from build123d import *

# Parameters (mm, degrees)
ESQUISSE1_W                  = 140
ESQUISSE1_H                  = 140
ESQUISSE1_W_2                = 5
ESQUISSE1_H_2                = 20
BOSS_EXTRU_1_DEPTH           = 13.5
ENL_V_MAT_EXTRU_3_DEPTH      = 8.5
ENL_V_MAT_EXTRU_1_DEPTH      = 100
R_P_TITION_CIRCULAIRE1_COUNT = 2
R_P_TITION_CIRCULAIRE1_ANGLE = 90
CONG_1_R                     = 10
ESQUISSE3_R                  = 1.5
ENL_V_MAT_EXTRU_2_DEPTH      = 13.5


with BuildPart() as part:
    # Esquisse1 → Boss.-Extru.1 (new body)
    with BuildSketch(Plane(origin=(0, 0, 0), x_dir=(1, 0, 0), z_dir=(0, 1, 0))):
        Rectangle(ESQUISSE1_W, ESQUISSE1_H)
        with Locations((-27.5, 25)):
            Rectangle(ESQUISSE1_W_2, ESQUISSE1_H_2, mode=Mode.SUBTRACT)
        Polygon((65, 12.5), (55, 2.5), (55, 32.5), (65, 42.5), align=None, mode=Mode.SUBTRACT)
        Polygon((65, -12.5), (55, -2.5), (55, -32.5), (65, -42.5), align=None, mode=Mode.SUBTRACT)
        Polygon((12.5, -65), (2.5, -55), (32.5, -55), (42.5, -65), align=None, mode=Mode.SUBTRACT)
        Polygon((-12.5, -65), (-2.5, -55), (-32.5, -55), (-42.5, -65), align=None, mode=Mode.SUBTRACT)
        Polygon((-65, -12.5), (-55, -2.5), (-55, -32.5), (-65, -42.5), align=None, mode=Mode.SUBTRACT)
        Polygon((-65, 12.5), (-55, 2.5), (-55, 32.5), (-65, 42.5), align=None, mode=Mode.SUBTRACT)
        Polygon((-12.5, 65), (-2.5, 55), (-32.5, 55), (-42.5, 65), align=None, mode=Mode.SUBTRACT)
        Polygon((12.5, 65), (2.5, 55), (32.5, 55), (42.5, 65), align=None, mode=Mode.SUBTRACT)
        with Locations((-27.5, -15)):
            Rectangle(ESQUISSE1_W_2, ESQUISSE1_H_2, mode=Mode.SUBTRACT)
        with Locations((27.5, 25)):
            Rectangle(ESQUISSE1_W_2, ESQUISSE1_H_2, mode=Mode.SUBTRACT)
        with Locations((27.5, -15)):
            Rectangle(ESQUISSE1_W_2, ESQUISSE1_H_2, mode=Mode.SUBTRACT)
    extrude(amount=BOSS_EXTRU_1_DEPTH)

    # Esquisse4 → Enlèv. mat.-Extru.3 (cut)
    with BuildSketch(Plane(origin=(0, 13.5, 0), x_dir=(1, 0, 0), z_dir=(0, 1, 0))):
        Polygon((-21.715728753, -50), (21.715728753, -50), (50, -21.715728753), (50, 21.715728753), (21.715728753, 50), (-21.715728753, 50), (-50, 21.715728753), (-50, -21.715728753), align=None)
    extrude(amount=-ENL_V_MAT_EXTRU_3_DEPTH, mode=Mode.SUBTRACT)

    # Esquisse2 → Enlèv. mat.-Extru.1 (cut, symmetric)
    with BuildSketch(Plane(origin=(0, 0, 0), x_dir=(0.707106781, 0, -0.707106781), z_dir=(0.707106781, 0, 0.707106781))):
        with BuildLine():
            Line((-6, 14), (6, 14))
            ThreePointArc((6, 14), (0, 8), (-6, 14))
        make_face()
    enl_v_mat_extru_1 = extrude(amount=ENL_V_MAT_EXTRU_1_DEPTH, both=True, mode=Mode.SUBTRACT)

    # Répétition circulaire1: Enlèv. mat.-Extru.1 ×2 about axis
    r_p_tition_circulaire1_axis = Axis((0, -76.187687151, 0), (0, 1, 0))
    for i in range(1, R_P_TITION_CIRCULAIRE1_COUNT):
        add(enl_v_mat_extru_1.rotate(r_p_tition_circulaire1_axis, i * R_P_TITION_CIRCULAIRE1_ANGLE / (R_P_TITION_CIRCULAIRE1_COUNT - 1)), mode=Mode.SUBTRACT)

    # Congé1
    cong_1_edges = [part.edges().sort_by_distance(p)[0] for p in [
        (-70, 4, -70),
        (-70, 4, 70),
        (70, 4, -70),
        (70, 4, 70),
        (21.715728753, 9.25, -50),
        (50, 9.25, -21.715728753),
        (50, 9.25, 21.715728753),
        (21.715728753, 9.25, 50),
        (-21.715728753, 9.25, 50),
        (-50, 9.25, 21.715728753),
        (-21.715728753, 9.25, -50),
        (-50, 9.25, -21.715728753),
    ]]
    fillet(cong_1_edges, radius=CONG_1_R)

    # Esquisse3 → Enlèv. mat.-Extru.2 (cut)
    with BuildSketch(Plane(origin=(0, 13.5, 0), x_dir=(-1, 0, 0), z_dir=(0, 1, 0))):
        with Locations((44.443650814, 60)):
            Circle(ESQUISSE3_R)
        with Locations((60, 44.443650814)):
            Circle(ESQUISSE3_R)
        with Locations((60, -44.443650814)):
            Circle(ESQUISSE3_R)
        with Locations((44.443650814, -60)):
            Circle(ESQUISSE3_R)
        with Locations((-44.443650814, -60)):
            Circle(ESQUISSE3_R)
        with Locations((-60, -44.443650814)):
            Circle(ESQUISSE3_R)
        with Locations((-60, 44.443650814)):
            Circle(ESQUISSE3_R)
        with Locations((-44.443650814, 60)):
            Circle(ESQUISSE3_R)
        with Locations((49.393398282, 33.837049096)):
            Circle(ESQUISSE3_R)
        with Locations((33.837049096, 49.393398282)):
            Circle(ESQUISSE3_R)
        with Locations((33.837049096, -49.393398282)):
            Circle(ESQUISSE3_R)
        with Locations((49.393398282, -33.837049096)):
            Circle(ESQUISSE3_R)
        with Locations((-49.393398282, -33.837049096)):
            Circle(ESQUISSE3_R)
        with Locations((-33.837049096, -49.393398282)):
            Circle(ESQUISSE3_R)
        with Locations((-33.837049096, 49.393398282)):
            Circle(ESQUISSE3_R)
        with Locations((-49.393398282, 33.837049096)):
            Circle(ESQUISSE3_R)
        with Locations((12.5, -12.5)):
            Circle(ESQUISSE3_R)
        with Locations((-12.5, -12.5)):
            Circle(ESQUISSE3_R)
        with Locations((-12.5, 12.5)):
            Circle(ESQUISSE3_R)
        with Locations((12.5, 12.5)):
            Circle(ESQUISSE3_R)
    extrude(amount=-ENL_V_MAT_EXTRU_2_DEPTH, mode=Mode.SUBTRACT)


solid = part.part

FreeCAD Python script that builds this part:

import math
import FreeCAD as App
import Part
import Sketcher
Q = App.Units.Quantity


def edges_at(feature, points):
    """Names of the edges that pass closest to the given points."""
    edges = feature.Shape.Edges
    near = lambda p: min(range(len(edges)), key=lambda i: edges[i].distToShape(Part.Vertex(*p))[0])
    return sorted({f"Edge{near(p) + 1}" for p in points})

doc = App.newDocument("Part")
body = doc.addObject("PartDesign::Body", "Body")

# Sketch on XZ plane
sketch1 = body.newObject("Sketcher::SketchObject", "Sketch")
sketch1.AttachmentSupport = (doc.getObject("XZ_Plane"), [""])
sketch1.MapMode = "FlatFace"
sketch1.addGeometry([
    Part.LineSegment(App.Vector(-70, -70, 0), App.Vector(-70, 70, 0)),  # 0
    Part.LineSegment(App.Vector(-70, 70, 0), App.Vector(70, 70, 0)),  # 1
    Part.LineSegment(App.Vector(70, 70, 0), App.Vector(70, -70, 0)),  # 2
    Part.LineSegment(App.Vector(70, -70, 0), App.Vector(-70, -70, 0)),  # 3
    Part.LineSegment(App.Vector(-2, 55, 0), App.Vector(-12, 65, 0)),  # 4
    Part.LineSegment(App.Vector(-12, 65, 0), App.Vector(-42, 65, 0)),  # 5
    Part.LineSegment(App.Vector(-42, 65, 0), App.Vector(-32, 55, 0)),  # 6
    Part.LineSegment(App.Vector(-32, 55, 0), App.Vector(-2, 55, 0)),  # 7
    Part.LineSegment(App.Vector(-65, 42, 0), App.Vector(-65, 12, 0)),  # 8
    Part.LineSegment(App.Vector(-65, 12, 0), App.Vector(-55, 2, 0)),  # 9
    Part.LineSegment(App.Vector(-55, 2, 0), App.Vector(-55, 32, 0)),  # 10
    Part.LineSegment(App.Vector(-55, 32, 0), App.Vector(-65, 42, 0)),  # 11
    Part.LineSegment(App.Vector(-25, 25, 0), App.Vector(-30, 25, 0)),  # 12
    Part.LineSegment(App.Vector(-30, 25, 0), App.Vector(-30, 5, 0)),  # 13
    Part.LineSegment(App.Vector(-30, 5, 0), App.Vector(-25, 5, 0)),  # 14
    Part.LineSegment(App.Vector(-25, 5, 0), App.Vector(-25, 25, 0)),  # 15
    Part.LineSegment(App.Vector(42, 65, 0), App.Vector(12, 65, 0)),  # 16
    Part.LineSegment(App.Vector(12, 65, 0), App.Vector(2, 55, 0)),  # 17
    Part.LineSegment(App.Vector(2, 55, 0), App.Vector(32, 55, 0)),  # 18
    Part.LineSegment(App.Vector(32, 55, 0), App.Vector(42, 65, 0)),  # 19
    Part.LineSegment(App.Vector(30, 25, 0), App.Vector(25, 25, 0)),  # 20
    Part.LineSegment(App.Vector(25, 25, 0), App.Vector(25, 5, 0)),  # 21
    Part.LineSegment(App.Vector(25, 5, 0), App.Vector(30, 5, 0)),  # 22
    Part.LineSegment(App.Vector(30, 5, 0), App.Vector(30, 25, 0)),  # 23
    Part.LineSegment(App.Vector(55, 2, 0), App.Vector(65, 12, 0)),  # 24
    Part.LineSegment(App.Vector(65, 12, 0), App.Vector(65, 42, 0)),  # 25
    Part.LineSegment(App.Vector(65, 42, 0), App.Vector(55, 32, 0)),  # 26
    Part.LineSegment(App.Vector(55, 32, 0), App.Vector(55, 2, 0)),  # 27
    Part.LineSegment(App.Vector(-55, -2, 0), App.Vector(-65, -12, 0)),  # 28
    Part.LineSegment(App.Vector(-65, -12, 0), App.Vector(-65, -42, 0)),  # 29
    Part.LineSegment(App.Vector(-65, -42, 0), App.Vector(-55, -32, 0)),  # 30
    Part.LineSegment(App.Vector(-55, -32, 0), App.Vector(-55, -2, 0)),  # 31
    Part.LineSegment(App.Vector(-25, -15, 0), App.Vector(-30, -15, 0)),  # 32
    Part.LineSegment(App.Vector(-30, -15, 0), App.Vector(-30, -35, 0)),  # 33
    Part.LineSegment(App.Vector(-30, -35, 0), App.Vector(-25, -35, 0)),  # 34
    Part.LineSegment(App.Vector(-25, -35, 0), App.Vector(-25, -15, 0)),  # 35
    Part.LineSegment(App.Vector(-42, -65, 0), App.Vector(-12, -65, 0)),  # 36
    Part.LineSegment(App.Vector(-12, -65, 0), App.Vector(-2, -55, 0)),  # 37
    Part.LineSegment(App.Vector(-2, -55, 0), App.Vector(-32, -55, 0)),  # 38
    Part.LineSegment(App.Vector(-32, -55, 0), App.Vector(-42, -65, 0)),  # 39
    Part.LineSegment(App.Vector(30, -15, 0), App.Vector(25, -15, 0)),  # 40
    Part.LineSegment(App.Vector(25, -15, 0), App.Vector(25, -35, 0)),  # 41
    Part.LineSegment(App.Vector(25, -35, 0), App.Vector(30, -35, 0)),  # 42
    Part.LineSegment(App.Vector(30, -35, 0), App.Vector(30, -15, 0)),  # 43
    Part.LineSegment(App.Vector(65, -42, 0), App.Vector(65, -12, 0)),  # 44
    Part.LineSegment(App.Vector(65, -12, 0), App.Vector(55, -2, 0)),  # 45
    Part.LineSegment(App.Vector(55, -2, 0), App.Vector(55, -32, 0)),  # 46
    Part.LineSegment(App.Vector(55, -32, 0), App.Vector(65, -42, 0)),  # 47
    Part.LineSegment(App.Vector(2, -55, 0), App.Vector(12, -65, 0)),  # 48
    Part.LineSegment(App.Vector(12, -65, 0), App.Vector(42, -65, 0)),  # 49
    Part.LineSegment(App.Vector(42, -65, 0), App.Vector(32, -55, 0)),  # 50
    Part.LineSegment(App.Vector(32, -55, 0), App.Vector(2, -55, 0)),  # 51
], False)
sketch1.addConstraint([
    Sketcher.Constraint("Coincident", 0, 2, 1, 1),
    Sketcher.Constraint("Coincident", 1, 2, 2, 1),
    Sketcher.Constraint("Coincident", 2, 2, 3, 1),
    Sketcher.Constraint("Coincident", 3, 2, 0, 1),
    Sketcher.Constraint("Coincident", 4, 2, 5, 1),
    Sketcher.Constraint("Coincident", 5, 2, 6, 1),
    Sketcher.Constraint("Coincident", 6, 2, 7, 1),
    Sketcher.Constraint("Coincident", 7, 2, 4, 1),
    Sketcher.Constraint("Coincident", 8, 2, 9, 1),
    Sketcher.Constraint("Coincident", 9, 2, 10, 1),
    Sketcher.Constraint("Coincident", 10, 2, 11, 1),
    Sketcher.Constraint("Coincident", 11, 2, 8, 1),
    Sketcher.Constraint("Coincident", 12, 2, 13, 1),
    Sketcher.Constraint("Coincident", 13, 2, 14, 1),
    Sketcher.Constraint("Coincident", 14, 2, 15, 1),
    Sketcher.Constraint("Coincident", 15, 2, 12, 1),
    Sketcher.Constraint("Coincident", 16, 2, 17, 1),
    Sketcher.Constraint("Coincident", 17, 2, 18, 1),
    Sketcher.Constraint("Coincident", 18, 2, 19, 1),
    Sketcher.Constraint("Coincident", 19, 2, 16, 1),
    Sketcher.Constraint("Coincident", 20, 2, 21, 1),
    Sketcher.Constraint("Coincident", 21, 2, 22, 1),
    Sketcher.Constraint("Coincident", 22, 2, 23, 1),
    Sketcher.Constraint("Coincident", 23, 2, 20, 1),
    Sketcher.Constraint("Coincident", 24, 2, 25, 1),
    Sketcher.Constraint("Coincident", 25, 2, 26, 1),
    Sketcher.Constraint("Coincident", 26, 2, 27, 1),
    Sketcher.Constraint("Coincident", 27, 2, 24, 1),
    Sketcher.Constraint("Coincident", 28, 2, 29, 1),
    Sketcher.Constraint("Coincident", 29, 2, 30, 1),
    Sketcher.Constraint("Coincident", 30, 2, 31, 1),
    Sketcher.Constraint("Coincident", 31, 2, 28, 1),
    Sketcher.Constraint("Coincident", 32, 2, 33, 1),
    Sketcher.Constraint("Coincident", 33, 2, 34, 1),
    Sketcher.Constraint("Coincident", 34, 2, 35, 1),
    Sketcher.Constraint("Coincident", 35, 2, 32, 1),
    Sketcher.Constraint("Coincident", 36, 2, 37, 1),
    Sketcher.Constraint("Coincident", 37, 2, 38, 1),
    Sketcher.Constraint("Coincident", 38, 2, 39, 1),
    Sketcher.Constraint("Coincident", 39, 2, 36, 1),
    Sketcher.Constraint("Coincident", 40, 2, 41, 1),
    Sketcher.Constraint("Coincident", 41, 2, 42, 1),
    Sketcher.Constraint("Coincident", 42, 2, 43, 1),
    Sketcher.Constraint("Coincident", 43, 2, 40, 1),
    Sketcher.Constraint("Coincident", 44, 2, 45, 1),
    Sketcher.Constraint("Coincident", 45, 2, 46, 1),
    Sketcher.Constraint("Coincident", 46, 2, 47, 1),
    Sketcher.Constraint("Coincident", 47, 2, 44, 1),
    Sketcher.Constraint("Coincident", 48, 2, 49, 1),
    Sketcher.Constraint("Coincident", 49, 2, 50, 1),
    Sketcher.Constraint("Coincident", 50, 2, 51, 1),
    Sketcher.Constraint("Coincident", 51, 2, 48, 1),
    Sketcher.Constraint("Vertical", 0),
    Sketcher.Constraint("Horizontal", 1),
    Sketcher.Constraint("Vertical", 2),
    Sketcher.Constraint("Horizontal", 3),
    Sketcher.Constraint("Horizontal", 5),
    Sketcher.Constraint("Horizontal", 7),
    Sketcher.Constraint("Vertical", 8),
    Sketcher.Constraint("Vertical", 10),
    Sketcher.Constraint("Horizontal", 12),
    Sketcher.Constraint("Vertical", 13),
    Sketcher.Constraint("Horizontal", 14),
    Sketcher.Constraint("Vertical", 15),
    Sketcher.Constraint("Horizontal", 16),
    Sketcher.Constraint("Horizontal", 18),
    Sketcher.Constraint("Horizontal", 20),
    Sketcher.Constraint("Vertical", 21),
    Sketcher.Constraint("Horizontal", 22),
    Sketcher.Constraint("Vertical", 23),
    Sketcher.Constraint("Vertical", 25),
    Sketcher.Constraint("Vertical", 27),
    Sketcher.Constraint("Vertical", 29),
    Sketcher.Constraint("Vertical", 31),
    Sketcher.Constraint("Horizontal", 32),
    Sketcher.Constraint("Vertical", 33),
    Sketcher.Constraint("Horizontal", 34),
    Sketcher.Constraint("Vertical", 35),
    Sketcher.Constraint("Horizontal", 36),
    Sketcher.Constraint("Horizontal", 38),
    Sketcher.Constraint("Horizontal", 40),
    Sketcher.Constraint("Vertical", 41),
    Sketcher.Constraint("Horizontal", 42),
    Sketcher.Constraint("Vertical", 43),
    Sketcher.Constraint("Vertical", 44),
    Sketcher.Constraint("Vertical", 46),
    Sketcher.Constraint("Horizontal", 49),
    Sketcher.Constraint("Horizontal", 51),
    Sketcher.Constraint("Symmetric", 0, 2, 2, 2, -1, 1),
    Sketcher.Constraint("Symmetric", 24, 2, 28, 2, -1, 1),
    Sketcher.Constraint("Symmetric", 26, 2, 30, 2, -1, 1),
    Sketcher.Constraint("Symmetric", 16, 2, 36, 2, -1, 1),
    Sketcher.Constraint("Symmetric", 17, 2, 37, 2, -1, 1),
    Sketcher.Constraint("Symmetric", 8, 2, 44, 2, -1, 1),
    Sketcher.Constraint("Symmetric", 9, 2, 45, 2, -1, 1),
    Sketcher.Constraint("Symmetric", 4, 2, 48, 2, -1, 1),
    Sketcher.Constraint("Symmetric", 6, 2, 50, 2, -1, 1),
    Sketcher.Constraint("Symmetric", 4, 2, 16, 2, -2),
    Sketcher.Constraint("Symmetric", 7, 2, 17, 2, -2),
    Sketcher.Constraint("Symmetric", 15, 2, 20, 2, -2),
    Sketcher.Constraint("Symmetric", 13, 2, 22, 2, -2),
    Sketcher.Constraint("Symmetric", 8, 2, 24, 2, -2),
    Sketcher.Constraint("Symmetric", 10, 2, 26, 2, -2),
    Sketcher.Constraint("Symmetric", 35, 2, 40, 2, -2),
    Sketcher.Constraint("Symmetric", 33, 2, 42, 2, -2),
    Sketcher.Constraint("Parallel", 4, 6),
    Sketcher.Constraint("Parallel", 6, 9),
    Sketcher.Constraint("Parallel", 9, 11),
    Sketcher.Constraint("Perpendicular", 11, 17),
    Sketcher.Constraint("Parallel", 17, 19),
    Sketcher.Constraint("Parallel", 19, 24),
    Sketcher.Constraint("Parallel", 24, 26),
    Sketcher.Constraint("Parallel", 26, 28),
    Sketcher.Constraint("Parallel", 28, 30),
    Sketcher.Constraint("Parallel", 37, 39),
    Sketcher.Constraint("Parallel", 45, 47),
    Sketcher.Constraint("Parallel", 47, 48),
    Sketcher.Constraint("Parallel", 48, 50),
    Sketcher.Constraint("Horizontal", 30, 2, 46, 2),
    Sketcher.Constraint("Vertical", 13, 2, 32, 2),
    Sketcher.Constraint("Vertical", 15, 2, 34, 2),
    Sketcher.Constraint("Vertical", 6, 2, 38, 2),
    Sketcher.Constraint("Vertical", 19, 2, 49, 2),
    Sketcher.Constraint("Equal", 3, 0),
    Sketcher.Constraint("Equal", 51, 8),
    Sketcher.Constraint("Equal", 23, 33),
    Sketcher.Constraint("Equal", 6, 9),
    Sketcher.Constraint("DistanceX", 1, 1, 1, 2, Q("140 mm")),
    Sketcher.Constraint("DistanceX", 5, 2, 5, 1, Q("30 mm")),
    Sketcher.Constraint("DistanceX", 12, 2, 12, 1, Q("5 mm")),
    Sketcher.Constraint("DistanceY", 13, 2, 13, 1, Q("20 mm")),
    Sketcher.Constraint("DistanceY", -1, 1, 4, 2, Q("65 mm")),
    Sketcher.Constraint("DistanceY", -1, 1, 6, 2, Q("55 mm")),
    Sketcher.Constraint("DistanceX", 8, 2, -1, 1, Q("65 mm")),
    Sketcher.Constraint("DistanceX", 12, 2, -1, 1, Q("30 mm")),
    Sketcher.Constraint("DistanceY", -1, 1, 12, 2, Q("25 mm")),
    Sketcher.Constraint("DistanceY", 32, 2, -1, 1, Q("15 mm")),
    Sketcher.Constraint("DistanceX", 7, 2, 16, 2, Q("15 mm")),
    Sketcher.Constraint("DistanceY", 28, 2, 9, 2, Q("15 mm")),
])
pad1 = body.newObject("PartDesign::Pad", "Pad")
pad1.Profile = sketch1
pad1.Length = 13.5
pad1.Reversed = True

# Sketch on XZ plane
sketch2 = body.newObject("Sketcher::SketchObject", "Sketch001")
sketch2.AttachmentSupport = (doc.getObject("XZ_Plane"), [""])
sketch2.MapMode = "FlatFace"
sketch2.AttachmentOffset = App.Placement(App.Vector(0, 0, -13.5), App.Rotation())
sketch2.addGeometry([
    Part.LineSegment(App.Vector(-22, 50, 0), App.Vector(22, 50, 0)),  # 0
    Part.LineSegment(App.Vector(22, 50, 0), App.Vector(50, 22, 0)),  # 1
    Part.LineSegment(App.Vector(50, 22, 0), App.Vector(50, -22, 0)),  # 2
    Part.LineSegment(App.Vector(50, -22, 0), App.Vector(22, -50, 0)),  # 3
    Part.LineSegment(App.Vector(22, -50, 0), App.Vector(-22, -50, 0)),  # 4
    Part.LineSegment(App.Vector(-22, -50, 0), App.Vector(-50, -22, 0)),  # 5
    Part.LineSegment(App.Vector(-50, -22, 0), App.Vector(-50, 22, 0)),  # 6
    Part.LineSegment(App.Vector(-50, 22, 0), App.Vector(-22, 50, 0)),  # 7
], False)
sketch2.addConstraint([
    Sketcher.Constraint("Coincident", 0, 2, 1, 1),
    Sketcher.Constraint("Coincident", 1, 2, 2, 1),
    Sketcher.Constraint("Coincident", 2, 2, 3, 1),
    Sketcher.Constraint("Coincident", 3, 2, 4, 1),
    Sketcher.Constraint("Coincident", 4, 2, 5, 1),
    Sketcher.Constraint("Coincident", 5, 2, 6, 1),
    Sketcher.Constraint("Coincident", 6, 2, 7, 1),
    Sketcher.Constraint("Coincident", 7, 2, 0, 1),
    Sketcher.Constraint("Horizontal", 0),
    Sketcher.Constraint("Vertical", 2),
    Sketcher.Constraint("Horizontal", 4),
    Sketcher.Constraint("Vertical", 6),
    Sketcher.Constraint("Symmetric", 0, 2, 4, 2, -1, 1),
    Sketcher.Constraint("Symmetric", 1, 2, 5, 2, -1, 1),
    Sketcher.Constraint("Perpendicular", 1, 3),
    Sketcher.Constraint("Perpendicular", 5, 7),
    Sketcher.Constraint("Horizontal", 2, 2, 5, 2),
    Sketcher.Constraint("Horizontal", 1, 2, 6, 2),
    Sketcher.Constraint("Vertical", 0, 2, 3, 2),
    Sketcher.Constraint("Equal", 4, 2),
    Sketcher.Constraint("Distance", 1, Q("40 mm")),
    Sketcher.Constraint("DistanceY", -1, 1, 0, 2, Q("50 mm")),
])
pocket1 = body.newObject("PartDesign::Pocket", "Pocket")
pocket1.Profile = sketch2
pocket1.Length = 8.5
pocket1.Reversed = True

# Sketch on an angled plane
sketch3 = body.newObject("Sketcher::SketchObject", "Sketch002")
sketch3.Placement = App.Placement(App.Vector(0, 0, 0), App.Rotation(App.Vector(0.707106781, 0, -0.707106781), App.Vector(0, 0.999999999, 0), App.Vector(0.707106781, 0, 0.707106781), "ZXY"))
sketch3.addGeometry([
    Part.LineSegment(App.Vector(6, 14, 0), App.Vector(-6, 14, 0)),
    Part.ArcOfCircle(Part.Circle(App.Vector(0, 14, 0), App.Vector(0, 0, 1), 6), math.radians(180), math.radians(360)),
], False)
sketch3.addConstraint([
    Sketcher.Constraint("Coincident", 0, 1, 1, 2),
    Sketcher.Constraint("Coincident", 1, 1, 0, 2),
    Sketcher.Constraint("Horizontal", 0),
    Sketcher.Constraint("PointOnObject", 1, 3, -2),
    Sketcher.Constraint("Horizontal", 1, 3, 0, 1),
    Sketcher.Constraint("Radius", 1, Q("6 mm")),
    Sketcher.Constraint("DistanceY", -1, 1, 1, 3, Q("14 mm")),
])
pocket2 = body.newObject("PartDesign::Pocket", "Pocket001")
pocket2.Profile = sketch3
pocket2.Length = 200
pocket2.Midplane = True
doc.recompute()

polarpattern = body.newObject("PartDesign::PolarPattern", "PolarPattern")
polarpattern.Originals = [pocket2]
polarpattern.Axis = (doc.getObject("Y_Axis"), [""])
polarpattern.Angle = 90
polarpattern.Occurrences = 2
body.Tip = polarpattern
doc.recompute()

fillet = body.newObject("PartDesign::Fillet", "Fillet")
fillet.Base = (polarpattern, edges_at(polarpattern, [
    (-70, 4, -70),
    (-70, 4, 70),
    (70, 4, -70),
    (70, 4, 70),
    (21.716, 9.25, -50),
    (50, 9.25, -21.716),
    (50, 9.25, 21.716),
    (21.716, 9.25, 50),
    (-21.716, 9.25, 50),
    (-50, 9.25, 21.716),
    (-21.716, 9.25, -50),
    (-50, 9.25, -21.716),
]))
fillet.Radius = 10

# Sketch on XZ plane
sketch4 = body.newObject("Sketcher::SketchObject", "Sketch003")
sketch4.AttachmentSupport = (doc.getObject("XZ_Plane"), [""])
sketch4.MapMode = "FlatFace"
sketch4.AttachmentOffset = App.Placement(App.Vector(0, 0, -13.5), App.Rotation())
sketch4.addGeometry([
    Part.Circle(App.Vector(-44.4, 60, 0), App.Vector(0, 0, 1), 1.5),  # 0
    Part.Circle(App.Vector(-60, 44.4, 0), App.Vector(0, 0, 1), 1.5),  # 1
    Part.Circle(App.Vector(-60, -44.4, 0), App.Vector(0, 0, 1), 1.5),  # 2
    Part.Circle(App.Vector(-44.4, -60, 0), App.Vector(0, 0, 1), 1.5),  # 3
    Part.Circle(App.Vector(44.4, -60, 0), App.Vector(0, 0, 1), 1.5),  # 4
    Part.Circle(App.Vector(60, -44.4, 0), App.Vector(0, 0, 1), 1.5),  # 5
    Part.Circle(App.Vector(60, 44.4, 0), App.Vector(0, 0, 1), 1.5),  # 6
    Part.Circle(App.Vector(44.4, 60, 0), App.Vector(0, 0, 1), 1.5),  # 7
    Part.Circle(App.Vector(-49.4, 33.8, 0), App.Vector(0, 0, 1), 1.5),  # 8
    Part.Circle(App.Vector(-33.8, 49.4, 0), App.Vector(0, 0, 1), 1.5),  # 9
    Part.Circle(App.Vector(-33.8, -49.4, 0), App.Vector(0, 0, 1), 1.5),  # 10
    Part.Circle(App.Vector(-49.4, -33.8, 0), App.Vector(0, 0, 1), 1.5),  # 11
    Part.Circle(App.Vector(49.4, -33.8, 0), App.Vector(0, 0, 1), 1.5),  # 12
    Part.Circle(App.Vector(33.8, -49.4, 0), App.Vector(0, 0, 1), 1.5),  # 13
    Part.Circle(App.Vector(33.8, 49.4, 0), App.Vector(0, 0, 1), 1.5),  # 14
    Part.Circle(App.Vector(49.4, 33.8, 0), App.Vector(0, 0, 1), 1.5),  # 15
    Part.Circle(App.Vector(-12.5, -12.5, 0), App.Vector(0, 0, 1), 1.5),  # 16
    Part.Circle(App.Vector(12.5, -12.5, 0), App.Vector(0, 0, 1), 1.5),  # 17
    Part.Circle(App.Vector(12.5, 12.5, 0), App.Vector(0, 0, 1), 1.5),  # 18
    Part.Circle(App.Vector(-12.5, 12.5, 0), App.Vector(0, 0, 1), 1.5),  # 19
], False)
sketch4.addConstraint([
    Sketcher.Constraint("Equal", 0, 1),
    Sketcher.Constraint("Equal", 1, 2),
    Sketcher.Constraint("Equal", 2, 3),
    Sketcher.Constraint("Equal", 3, 4),
    Sketcher.Constraint("Equal", 4, 5),
    Sketcher.Constraint("Equal", 5, 6),
    Sketcher.Constraint("Equal", 6, 7),
    Sketcher.Constraint("Equal", 7, 8),
    Sketcher.Constraint("Equal", 8, 9),
    Sketcher.Constraint("Equal", 9, 10),
    Sketcher.Constraint("Equal", 10, 11),
    Sketcher.Constraint("Equal", 11, 12),
    Sketcher.Constraint("Equal", 12, 13),
    Sketcher.Constraint("Equal", 13, 14),
    Sketcher.Constraint("Equal", 14, 15),
    Sketcher.Constraint("Equal", 15, 16),
    Sketcher.Constraint("Equal", 16, 17),
    Sketcher.Constraint("Equal", 17, 18),
    Sketcher.Constraint("Equal", 18, 19),
    Sketcher.Constraint("Symmetric", 0, 3, 4, 3, -1, 1),
    Sketcher.Constraint("Symmetric", 1, 3, 5, 3, -1, 1),
    Sketcher.Constraint("Symmetric", 2, 3, 6, 3, -1, 1),
    Sketcher.Constraint("Symmetric", 3, 3, 7, 3, -1, 1),
    Sketcher.Constraint("Symmetric", 8, 3, 12, 3, -1, 1),
    Sketcher.Constraint("Symmetric", 9, 3, 13, 3, -1, 1),
    Sketcher.Constraint("Symmetric", 10, 3, 14, 3, -1, 1),
    Sketcher.Constraint("Symmetric", 11, 3, 15, 3, -1, 1),
    Sketcher.Constraint("Symmetric", 16, 3, 18, 3, -1, 1),
    Sketcher.Constraint("Symmetric", 17, 3, 19, 3, -1, 1),
    Sketcher.Constraint("Symmetric", 3, 3, 4, 3, -2),
    Sketcher.Constraint("Symmetric", 2, 3, 5, 3, -2),
    Sketcher.Constraint("Symmetric", 11, 3, 12, 3, -2),
    Sketcher.Constraint("Symmetric", 10, 3, 13, 3, -2),
    Sketcher.Constraint("Symmetric", 16, 3, 17, 3, -2),
    Sketcher.Constraint("Diameter", 0, Q("3 mm")),
    Sketcher.Constraint("DistanceY", -1, 1, 0, 3, Q("60 mm")),
    Sketcher.Constraint("DistanceX", 1, 3, -1, 1, Q("60 mm")),
    Sketcher.Constraint("DistanceX", 16, 3, 17, 3, Q("25 mm")),
    Sketcher.Constraint("DistanceY", 17, 3, 18, 3, Q("25 mm")),
    Sketcher.Constraint("DistanceX", 8, 3, -1, 1, Q("49.393398 mm")),
    Sketcher.Constraint("DistanceY", -1, 1, 9, 3, Q("49.393398 mm")),
    Sketcher.Constraint("DistanceY", 2, 3, 1, 3, Q("88.887302 mm")),
    Sketcher.Constraint("DistanceX", 3, 3, 4, 3, Q("88.887302 mm")),
    Sketcher.Constraint("DistanceY", 8, 3, 1, 3, Q("10.606602 mm")),
    Sketcher.Constraint("DistanceX", 0, 3, 9, 3, Q("10.606602 mm")),
])
pocket3 = body.newObject("PartDesign::Pocket", "Pocket002")
pocket3.Profile = sketch4
pocket3.Length = 13.5
pocket3.Reversed = True

doc.recompute()
